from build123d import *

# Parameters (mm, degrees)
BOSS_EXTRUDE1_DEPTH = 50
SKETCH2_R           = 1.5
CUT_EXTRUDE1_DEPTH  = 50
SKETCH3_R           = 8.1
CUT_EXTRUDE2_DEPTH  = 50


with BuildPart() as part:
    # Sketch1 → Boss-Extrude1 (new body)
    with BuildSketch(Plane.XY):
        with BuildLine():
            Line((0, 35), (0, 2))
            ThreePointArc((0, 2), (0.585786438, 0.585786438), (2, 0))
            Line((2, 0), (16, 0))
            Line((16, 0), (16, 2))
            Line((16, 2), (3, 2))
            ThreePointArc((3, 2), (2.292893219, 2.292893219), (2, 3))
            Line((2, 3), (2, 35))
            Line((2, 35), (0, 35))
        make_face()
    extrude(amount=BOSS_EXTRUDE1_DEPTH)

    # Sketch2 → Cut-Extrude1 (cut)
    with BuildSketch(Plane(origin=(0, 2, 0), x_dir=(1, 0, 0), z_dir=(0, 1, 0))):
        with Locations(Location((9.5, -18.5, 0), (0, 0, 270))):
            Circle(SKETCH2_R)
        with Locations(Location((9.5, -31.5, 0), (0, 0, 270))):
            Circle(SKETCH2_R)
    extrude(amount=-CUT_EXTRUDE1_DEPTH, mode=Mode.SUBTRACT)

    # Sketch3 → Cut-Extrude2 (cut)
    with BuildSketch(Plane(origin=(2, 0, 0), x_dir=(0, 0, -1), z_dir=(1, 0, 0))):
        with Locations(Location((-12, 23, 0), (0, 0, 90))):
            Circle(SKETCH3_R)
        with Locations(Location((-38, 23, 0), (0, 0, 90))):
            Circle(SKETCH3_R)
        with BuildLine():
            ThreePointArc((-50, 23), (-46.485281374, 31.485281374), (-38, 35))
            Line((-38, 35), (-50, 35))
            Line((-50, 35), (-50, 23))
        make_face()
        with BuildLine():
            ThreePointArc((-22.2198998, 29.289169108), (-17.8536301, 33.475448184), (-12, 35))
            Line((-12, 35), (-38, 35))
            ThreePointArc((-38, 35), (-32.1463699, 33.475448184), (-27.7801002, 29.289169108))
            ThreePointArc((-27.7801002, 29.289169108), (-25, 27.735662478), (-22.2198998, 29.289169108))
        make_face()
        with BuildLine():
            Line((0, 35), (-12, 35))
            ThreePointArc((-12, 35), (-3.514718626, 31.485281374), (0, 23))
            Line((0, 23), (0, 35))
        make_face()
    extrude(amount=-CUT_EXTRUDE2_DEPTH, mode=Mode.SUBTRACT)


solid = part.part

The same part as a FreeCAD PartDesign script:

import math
import FreeCAD as App
import Part
import Sketcher

V = App.Vector
Q = App.Units.Quantity

doc = App.newDocument("Part")
body = doc.addObject("PartDesign::Body", "Body")

# Sketch on XY plane
sketch1 = body.newObject("Sketcher::SketchObject", "Sketch")
sketch1.AttachmentSupport = (doc.getObject("XY_Plane"), [""])
sketch1.MapMode = "FlatFace"
sketch1.addGeometry([
    Part.LineSegment(V(0, 35, 0), V(0, 2, 0)),  # 0
    Part.ArcOfCircle(Part.Circle(V(2, 2, 0), V(0, 0, 1), 2), math.radians(-180), math.radians(-90)),  # 1
    Part.LineSegment(V(2, 0, 0), V(16, 0, 0)),  # 2
    Part.LineSegment(V(16, 0, 0), V(16, 2, 0)),  # 3
    Part.LineSegment(V(16, 2, 0), V(3, 2, 0)),  # 4
    Part.ArcOfCircle(Part.Circle(V(3, 3, 0), V(0, 0, 1), 1), math.radians(-180), math.radians(-90)),  # 5
    Part.LineSegment(V(2, 3, 0), V(2, 35, 0)),  # 6
    Part.LineSegment(V(2, 35, 0), V(0, 35, 0)),  # 7
], False)
sketch1.addConstraint([
    Sketcher.Constraint("Tangent", 0, 2, 1, 1),
    Sketcher.Constraint("Tangent", 1, 2, 2, 1),
    Sketcher.Constraint("Coincident", 2, 2, 3, 1),
    Sketcher.Constraint("Coincident", 3, 2, 4, 1),
    Sketcher.Constraint("Tangent", 4, 2, 5, 2),
    Sketcher.Constraint("Tangent", 5, 1, 6, 1),
    Sketcher.Constraint("Coincident", 6, 2, 7, 1),
    Sketcher.Constraint("Coincident", 7, 2, 0, 1),
    Sketcher.Constraint("Vertical", 0),
    Sketcher.Constraint("Horizontal", 2),
    Sketcher.Constraint("Vertical", 3),
    Sketcher.Constraint("Horizontal", 4),
    Sketcher.Constraint("Vertical", 6),
    Sketcher.Constraint("Horizontal", 7),
    Sketcher.Constraint("PointOnObject", 0, 2, -2),
    Sketcher.Constraint("PointOnObject", 1, 2, -1),
    Sketcher.Constraint("Horizontal", 0, 2, 3, 2),
    Sketcher.Constraint("Vertical", 1, 2, 5, 1),
    Sketcher.Constraint("Radius", 1, Q("2 mm")),
    Sketcher.Constraint("Radius", 5, Q("1 mm")),
    Sketcher.Constraint("DistanceX", 2, 1, 2, 2, Q("14 mm")),
    Sketcher.Constraint("DistanceY", 0, 2, 0, 1, Q("33 mm")),
])
pad1 = body.newObject("PartDesign::Pad", "Pad")
pad1.Profile = sketch1
pad1.Length = 50

# Sketch on XZ plane
sketch2 = body.newObject("Sketcher::SketchObject", "Sketch001")
sketch2.AttachmentSupport = (doc.getObject("XZ_Plane"), [""])
sketch2.MapMode = "FlatFace"
sketch2.AttachmentOffset = App.Placement(V(0, 0, -2), App.Rotation())
sketch2.addGeometry([
    Part.Circle(V(9.5, 18.5, 0), V(0, 0, 1), 1.5),
    Part.Circle(V(9.5, 31.5, 0), V(0, 0, 1), 1.5),
], False)
sketch2.addConstraint([
    Sketcher.Constraint("Equal", 0, 1),
    Sketcher.Constraint("Vertical", 0, 3, 1, 3),
    Sketcher.Constraint("Diameter", 0, Q("3 mm")),
    Sketcher.Constraint("DistanceY", 0, 3, 1, 3, Q("13 mm")),
    Sketcher.Constraint("DistanceX", -1, 1, 0, 3, Q("9.5 mm")),
    Sketcher.Constraint("DistanceY", -1, 1, 0, 3, Q("18.5 mm")),
])
pocket1 = body.newObject("PartDesign::Pocket", "Pocket")
pocket1.Profile = sketch2
pocket1.Length = 50
pocket1.Reversed = True

# Sketch on YZ plane
sketch3 = body.newObject("Sketcher::SketchObject", "Sketch002")
sketch3.AttachmentSupport = (doc.getObject("YZ_Plane"), [""])
sketch3.MapMode = "FlatFace"
sketch3.AttachmentOffset = App.Placement(V(0, 0, 2), App.Rotation())
sketch3.addGeometry([
    Part.Circle(V(23, 12, 0), V(0, 0, 1), 8.1),  # 0
    Part.Circle(V(23, 38, 0), V(0, 0, 1), 8.1),  # 1
    Part.ArcOfCircle(Part.Circle(V(23, 38, 0), V(0, 0, 1), 12), math.radians(0), math.radians(90)),  # 2
    Part.LineSegment(V(35, 38, 0), V(35, 50, 0)),  # 3
    Part.LineSegment(V(35, 50, 0), V(23, 50, 0)),  # 4
    Part.ArcOfCircle(Part.Circle(V(23, 12, 0), V(0, 0, 1), 12), math.radians(0), math.radians(58)),  # 5
    Part.LineSegment(V(35, 12, 0), V(35, 38, 0)),  # 6
    Part.ArcOfCircle(Part.Circle(V(23, 38, 0), V(0, 0, 1), 12), math.radians(-58), math.radians(0)),  # 7
    Part.ArcOfCircle(Part.Circle(V(31, 25, 0), V(0, 0, 1), 3.3), math.radians(122), math.radians(238)),  # 8
    Part.LineSegment(V(35, 0, 0), V(35, 12, 0)),  # 9
    Part.ArcOfCircle(Part.Circle(V(23, 12, 0), V(0, 0, 1), 12), math.radians(-90), math.radians(0)),  # 10
    Part.LineSegment(V(23, 0, 0), V(35, 0, 0)),  # 11
], False)
sketch3.addConstraint([
    Sketcher.Constraint("Tangent", 2, 1, 3, 1),
    Sketcher.Constraint("Coincident", 3, 2, 4, 1),
    Sketcher.Constraint("Tangent", 4, 2, 2, 2),
    Sketcher.Constraint("Tangent", 5, 1, 6, 1),
    Sketcher.Constraint("Tangent", 6, 2, 7, 2),
    Sketcher.Constraint("Tangent", 7, 1, 8, 1),
    Sketcher.Constraint("Tangent", 8, 2, 5, 2),
    Sketcher.Constraint("Tangent", 9, 2, 10, 2),
    Sketcher.Constraint("Tangent", 10, 1, 11, 1),
    Sketcher.Constraint("Coincident", 11, 2, 9, 1),
    Sketcher.Constraint("Vertical", 3),
    Sketcher.Constraint("Horizontal", 4),
    Sketcher.Constraint("Vertical", 6),
    Sketcher.Constraint("Vertical", 9),
    Sketcher.Constraint("Horizontal", 11),
    Sketcher.Constraint("Coincident", 2, 3, 1, 3),
    Sketcher.Constraint("Coincident", 5, 3, 0, 3),
    Sketcher.Constraint("Coincident", 7, 3, 1, 3),
    Sketcher.Constraint("Coincident", 10, 3, 0, 3),
    Sketcher.Constraint("Equal", 0, 1),
    Sketcher.Constraint("Equal", 2, 5),
    Sketcher.Constraint("Equal", 5, 7),
    Sketcher.Constraint("Equal", 7, 10),
    Sketcher.Constraint("PointOnObject", 10, 1, -1),
    Sketcher.Constraint("Radius", 2, Q("12 mm")),
    Sketcher.Constraint("Diameter", 0, Q("16.2 mm")),
    Sketcher.Constraint("DistanceY", 6, 1, 6, 2, Q("26 mm")),
    Sketcher.Constraint("DistanceX", -1, 1, 0, 3, Q("23 mm")),
    Sketcher.Constraint("DistanceX", -1, 1, 8, 3, Q("31 mm")),
])
pocket2 = body.newObject("PartDesign::Pocket", "Pocket001")
pocket2.Profile = sketch3
pocket2.Length = 50

doc.recompute()
